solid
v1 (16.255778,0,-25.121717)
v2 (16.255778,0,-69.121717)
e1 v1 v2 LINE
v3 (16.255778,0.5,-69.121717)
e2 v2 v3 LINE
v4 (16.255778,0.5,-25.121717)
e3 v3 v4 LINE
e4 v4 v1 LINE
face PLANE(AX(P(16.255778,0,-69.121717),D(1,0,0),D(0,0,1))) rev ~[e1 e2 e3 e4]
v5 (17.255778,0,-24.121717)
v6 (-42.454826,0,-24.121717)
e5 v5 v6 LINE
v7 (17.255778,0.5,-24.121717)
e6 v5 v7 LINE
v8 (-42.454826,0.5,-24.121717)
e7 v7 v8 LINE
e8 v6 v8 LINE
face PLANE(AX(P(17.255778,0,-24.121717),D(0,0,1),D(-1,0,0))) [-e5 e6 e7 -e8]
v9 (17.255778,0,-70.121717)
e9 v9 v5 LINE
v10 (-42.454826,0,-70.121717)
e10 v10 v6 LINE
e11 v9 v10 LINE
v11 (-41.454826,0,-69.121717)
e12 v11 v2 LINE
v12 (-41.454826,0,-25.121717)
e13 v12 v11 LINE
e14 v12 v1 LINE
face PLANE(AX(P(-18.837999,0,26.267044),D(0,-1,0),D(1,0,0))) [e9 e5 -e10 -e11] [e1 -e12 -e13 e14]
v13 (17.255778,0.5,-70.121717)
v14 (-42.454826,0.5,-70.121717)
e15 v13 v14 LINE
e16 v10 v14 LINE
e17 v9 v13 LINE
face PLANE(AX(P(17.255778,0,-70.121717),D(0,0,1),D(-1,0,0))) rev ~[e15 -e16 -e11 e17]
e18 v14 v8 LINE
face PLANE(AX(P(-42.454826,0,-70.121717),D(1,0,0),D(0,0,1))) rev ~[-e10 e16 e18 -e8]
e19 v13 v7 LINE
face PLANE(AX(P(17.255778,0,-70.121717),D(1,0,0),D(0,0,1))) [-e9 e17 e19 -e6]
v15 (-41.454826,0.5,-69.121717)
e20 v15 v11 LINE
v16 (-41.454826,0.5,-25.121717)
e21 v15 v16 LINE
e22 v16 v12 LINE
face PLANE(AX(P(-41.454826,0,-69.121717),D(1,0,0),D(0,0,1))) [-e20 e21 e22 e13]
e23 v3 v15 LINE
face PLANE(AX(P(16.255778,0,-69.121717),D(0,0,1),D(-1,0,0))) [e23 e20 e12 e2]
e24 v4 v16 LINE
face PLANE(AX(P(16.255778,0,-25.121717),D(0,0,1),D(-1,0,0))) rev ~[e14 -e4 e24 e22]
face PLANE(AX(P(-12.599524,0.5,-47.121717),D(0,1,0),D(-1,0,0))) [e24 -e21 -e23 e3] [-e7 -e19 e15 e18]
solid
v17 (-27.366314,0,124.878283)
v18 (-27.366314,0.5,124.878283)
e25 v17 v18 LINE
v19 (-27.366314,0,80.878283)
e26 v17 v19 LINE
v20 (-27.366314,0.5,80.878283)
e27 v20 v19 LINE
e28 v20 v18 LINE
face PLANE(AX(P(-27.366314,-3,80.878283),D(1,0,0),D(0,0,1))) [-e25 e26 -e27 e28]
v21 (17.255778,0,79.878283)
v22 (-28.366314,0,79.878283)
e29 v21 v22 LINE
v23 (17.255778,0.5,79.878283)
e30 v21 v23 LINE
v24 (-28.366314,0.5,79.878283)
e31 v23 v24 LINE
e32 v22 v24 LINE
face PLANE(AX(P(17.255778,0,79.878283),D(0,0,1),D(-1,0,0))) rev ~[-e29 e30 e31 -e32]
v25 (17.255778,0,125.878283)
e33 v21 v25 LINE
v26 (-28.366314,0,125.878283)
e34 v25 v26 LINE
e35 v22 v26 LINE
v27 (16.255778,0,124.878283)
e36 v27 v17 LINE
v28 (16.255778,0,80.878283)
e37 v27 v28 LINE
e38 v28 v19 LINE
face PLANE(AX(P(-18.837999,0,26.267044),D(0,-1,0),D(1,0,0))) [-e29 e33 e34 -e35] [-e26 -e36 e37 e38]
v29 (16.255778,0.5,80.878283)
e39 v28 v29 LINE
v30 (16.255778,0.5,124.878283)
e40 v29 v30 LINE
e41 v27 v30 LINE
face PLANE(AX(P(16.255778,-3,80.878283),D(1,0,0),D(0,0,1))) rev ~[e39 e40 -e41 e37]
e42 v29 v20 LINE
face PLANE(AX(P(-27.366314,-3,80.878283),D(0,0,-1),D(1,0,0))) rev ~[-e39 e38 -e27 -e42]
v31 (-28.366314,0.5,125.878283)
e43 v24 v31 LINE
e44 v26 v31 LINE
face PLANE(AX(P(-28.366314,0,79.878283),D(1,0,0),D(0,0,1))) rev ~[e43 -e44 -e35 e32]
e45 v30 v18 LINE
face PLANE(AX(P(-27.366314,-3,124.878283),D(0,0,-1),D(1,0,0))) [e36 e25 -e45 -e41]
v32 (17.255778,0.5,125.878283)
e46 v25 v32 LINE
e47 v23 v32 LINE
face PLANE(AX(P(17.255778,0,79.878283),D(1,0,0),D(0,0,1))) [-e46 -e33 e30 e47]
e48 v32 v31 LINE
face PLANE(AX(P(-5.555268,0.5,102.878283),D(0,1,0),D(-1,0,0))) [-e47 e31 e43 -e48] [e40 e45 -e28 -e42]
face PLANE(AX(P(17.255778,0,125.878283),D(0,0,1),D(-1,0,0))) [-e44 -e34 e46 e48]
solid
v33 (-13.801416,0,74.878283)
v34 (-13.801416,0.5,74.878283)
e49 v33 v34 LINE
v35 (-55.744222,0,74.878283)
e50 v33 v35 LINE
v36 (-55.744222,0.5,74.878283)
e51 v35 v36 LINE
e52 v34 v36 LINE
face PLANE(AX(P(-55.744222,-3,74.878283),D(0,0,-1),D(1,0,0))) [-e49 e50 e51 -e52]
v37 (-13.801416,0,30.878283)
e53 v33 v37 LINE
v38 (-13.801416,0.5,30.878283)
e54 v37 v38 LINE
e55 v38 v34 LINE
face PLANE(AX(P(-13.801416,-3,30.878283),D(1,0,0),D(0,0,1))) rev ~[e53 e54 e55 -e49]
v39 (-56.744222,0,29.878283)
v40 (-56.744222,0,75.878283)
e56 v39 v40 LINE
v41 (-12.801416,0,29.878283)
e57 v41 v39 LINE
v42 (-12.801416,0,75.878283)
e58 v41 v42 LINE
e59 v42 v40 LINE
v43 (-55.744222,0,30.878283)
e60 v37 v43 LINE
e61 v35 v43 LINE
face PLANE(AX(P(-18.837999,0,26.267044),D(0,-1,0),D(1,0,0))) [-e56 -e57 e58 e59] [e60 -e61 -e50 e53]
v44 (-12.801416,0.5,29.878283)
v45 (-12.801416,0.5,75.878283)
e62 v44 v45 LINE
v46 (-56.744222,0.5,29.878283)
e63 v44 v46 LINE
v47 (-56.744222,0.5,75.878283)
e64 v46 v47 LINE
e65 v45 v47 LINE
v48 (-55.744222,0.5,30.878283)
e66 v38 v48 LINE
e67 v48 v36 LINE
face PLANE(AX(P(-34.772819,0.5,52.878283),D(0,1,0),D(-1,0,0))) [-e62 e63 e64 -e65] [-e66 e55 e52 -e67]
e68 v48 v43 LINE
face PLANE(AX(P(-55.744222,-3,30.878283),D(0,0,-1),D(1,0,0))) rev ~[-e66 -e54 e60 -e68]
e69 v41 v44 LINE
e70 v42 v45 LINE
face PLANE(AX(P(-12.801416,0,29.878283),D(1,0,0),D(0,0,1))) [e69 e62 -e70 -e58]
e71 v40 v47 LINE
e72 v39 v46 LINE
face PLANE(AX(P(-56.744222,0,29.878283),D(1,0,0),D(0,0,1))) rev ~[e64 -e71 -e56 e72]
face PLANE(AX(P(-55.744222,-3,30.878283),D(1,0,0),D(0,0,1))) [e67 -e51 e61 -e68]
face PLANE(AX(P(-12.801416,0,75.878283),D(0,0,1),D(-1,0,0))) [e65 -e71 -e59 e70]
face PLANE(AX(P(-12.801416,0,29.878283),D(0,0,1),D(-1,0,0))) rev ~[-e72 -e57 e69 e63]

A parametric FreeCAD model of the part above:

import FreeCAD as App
import Part
import Sketcher
from FreeCAD import Vector
Q = App.Units.Quantity

doc = App.newDocument("Part")
body = doc.addObject("PartDesign::Body", "Body")
body.AllowCompound = True

sketch1 = body.newObject("Sketcher::SketchObject", "Sketch")
sketch1.AttachmentSupport = (doc.getObject("XZ_Plane"), [""])
sketch1.MapMode = "FlatFace"
sketch1.addGeometry(Part.LineSegment(Vector(-60, 129, 0), Vector(-60, -73, 0)), False)
sketch1.addGeometry(Part.LineSegment(Vector(-60, -73, 0), Vector(20, -73, 0)), False)
sketch1.addGeometry(Part.LineSegment(Vector(20, -73, 0), Vector(20, 129, 0)), False)
sketch1.addGeometry(Part.LineSegment(Vector(20, 129, 0), Vector(-60, 129, 0)), False)
sketch1.addConstraint(Sketcher.Constraint("Coincident", 0, 2, 1, 1))
sketch1.addConstraint(Sketcher.Constraint("Coincident", 1, 2, 2, 1))
sketch1.addConstraint(Sketcher.Constraint("Coincident", 2, 2, 3, 1))
sketch1.addConstraint(Sketcher.Constraint("Coincident", 3, 2, 0, 1))
sketch1.addConstraint(Sketcher.Constraint("Vertical", 0))
sketch1.addConstraint(Sketcher.Constraint("Horizontal", 1))
sketch1.addConstraint(Sketcher.Constraint("Vertical", 2))
sketch1.addConstraint(Sketcher.Constraint("Horizontal", 3))
sketch1.addConstraint(Sketcher.Constraint("DistanceX", 1, 1, 1, 2, Q("80 mm")))
sketch1.addConstraint(Sketcher.Constraint("DistanceY", 0, 2, 0, 1, Q("202 mm")))
sketch1.addConstraint(Sketcher.Constraint("DistanceX", 0, 2, -1, 1, Q("59.744222 mm")))
sketch1.addConstraint(Sketcher.Constraint("DistanceY", 0, 2, -1, 1, Q("73.121717 mm")))
pad1 = body.newObject("PartDesign::Pad", "Pad")
pad1.Profile = sketch1
pad1.Length = 3

sketch2 = body.newObject("Sketcher::SketchObject", "Sketch001")
sketch2.AttachmentSupport = (doc.getObject("XZ_Plane"), [""])
sketch2.MapMode = "FlatFace"
sketch2.AttachmentOffset = App.Placement(Vector(0, 0, 3), App.Rotation())
sketch2.addGeometry(Part.LineSegment(Vector(-56, 75, 0), Vector(-56, 31, 0)), False)
sketch2.addGeometry(Part.LineSegment(Vector(-56, 31, 0), Vector(-14, 31, 0)), False)
sketch2.addGeometry(Part.LineSegment(Vector(-14, 31, 0), Vector(-14, 75, 0)), False)
sketch2.addGeometry(Part.LineSegment(Vector(-14, 75, 0), Vector(-56, 75, 0)), False)
sketch2.addGeometry(Part.LineSegment(Vector(-27, 125, 0), Vector(-27, 81, 0)), False)
sketch2.addGeometry(Part.LineSegment(Vector(-27, 81, 0), Vector(16, 81, 0)), False)
sketch2.addGeometry(Part.LineSegment(Vector(16, 81, 0), Vector(16, 125, 0)), False)
sketch2.addGeometry(Part.LineSegment(Vector(16, 125, 0), Vector(-27, 125, 0)), False)
sketch2.addGeometry(Part.LineSegment(Vector(16, -25, 0), Vector(-41, -25, 0)), False)
sketch2.addGeometry(Part.LineSegment(Vector(-41, -25, 0), Vector(-41, -69, 0)), False)
sketch2.addGeometry(Part.LineSegment(Vector(-41, -69, 0), Vector(16, -69, 0)), False)
sketch2.addGeometry(Part.LineSegment(Vector(16, -69, 0), Vector(16, -25, 0)), False)
sketch2.addConstraint(Sketcher.Constraint("Coincident", 0, 2, 1, 1))
sketch2.addConstraint(Sketcher.Constraint("Coincident", 1, 2, 2, 1))
sketch2.addConstraint(Sketcher.Constraint("Coincident", 2, 2, 3, 1))
sketch2.addConstraint(Sketcher.Constraint("Coincident", 3, 2, 0, 1))
sketch2.addConstraint(Sketcher.Constraint("Coincident", 4, 2, 5, 1))
sketch2.addConstraint(Sketcher.Constraint("Coincident", 5, 2, 6, 1))
sketch2.addConstraint(Sketcher.Constraint("Coincident", 6, 2, 7, 1))
sketch2.addConstraint(Sketcher.Constraint("Coincident", 7, 2, 4, 1))
sketch2.addConstraint(Sketcher.Constraint("Coincident", 8, 2, 9, 1))
sketch2.addConstraint(Sketcher.Constraint("Coincident", 9, 2, 10, 1))
sketch2.addConstraint(Sketcher.Constraint("Coincident", 10, 2, 11, 1))
sketch2.addConstraint(Sketcher.Constraint("Coincident", 11, 2, 8, 1))
sketch2.addConstraint(Sketcher.Constraint("Vertical", 0))
sketch2.addConstraint(Sketcher.Constraint("Horizontal", 1))
sketch2.addConstraint(Sketcher.Constraint("Vertical", 2))
sketch2.addConstraint(Sketcher.Constraint("Horizontal", 3))
sketch2.addConstraint(Sketcher.Constraint("Vertical", 4))
sketch2.addConstraint(Sketcher.Constraint("Horizontal", 5))
sketch2.addConstraint(Sketcher.Constraint("Vertical", 6))
sketch2.addConstraint(Sketcher.Constraint("Horizontal", 7))
sketch2.addConstraint(Sketcher.Constraint("Horizontal", 8))
sketch2.addConstraint(Sketcher.Constraint("Vertical", 9))
sketch2.addConstraint(Sketcher.Constraint("Horizontal", 10))
sketch2.addConstraint(Sketcher.Constraint("Vertical", 11))
sketch2.addConstraint(Sketcher.Constraint("Vertical", 6, 2, 10, 2))
sketch2.addConstraint(Sketcher.Constraint("Equal", 2, 4))
sketch2.addConstraint(Sketcher.Constraint("Equal", 6, 9))
sketch2.addConstraint(Sketcher.Constraint("DistanceY", 0, 2, 0, 1, Q("44 mm")))
sketch2.addConstraint(Sketcher.Constraint("DistanceY", 2, 2, 4, 2, Q("6 mm")))
sketch2.addConstraint(Sketcher.Constraint("DistanceX", 3, 2, 5, 2, Q("72 mm")))
sketch2.addConstraint(Sketcher.Constraint("DistanceY", 8, 2, 0, 2, Q("56 mm")))
sketch2.addConstraint(Sketcher.Constraint("DistanceX", 5, 1, 5, 2, Q("43.622092 mm")))
sketch2.addConstraint(Sketcher.Constraint("DistanceX", 1, 1, 1, 2, Q("41.942806 mm")))
sketch2.addConstraint(Sketcher.Constraint("DistanceX", 8, 2, 8, 1, Q("57.710604 mm")))
sketch2.addConstraint(Sketcher.Constraint("DistanceX", 0, 2, -1, 1, Q("55.744222 mm")))
sketch2.addConstraint(Sketcher.Constraint("DistanceY", -1, 1, 0, 2, Q("30.878283 mm")))
pocket1 = body.newObject("PartDesign::Pocket", "Pocket")
pocket1.Profile = sketch2
pocket1.Length = 25

sketch3 = body.newObject("Sketcher::SketchObject", "Sketch002")
sketch3.AttachmentSupport = (doc.getObject("XZ_Plane"), [""])
sketch3.MapMode = "FlatFace"
sketch3.addGeometry(Part.LineSegment(Vector(17, -24, 0), Vector(17, -70, 0)), False)
sketch3.addGeometry(Part.LineSegment(Vector(17, -70, 0), Vector(-42, -70, 0)), False)
sketch3.addGeometry(Part.LineSegment(Vector(-42, -70, 0), Vector(-42, -24, 0)), False)
sketch3.addGeometry(Part.LineSegment(Vector(-42, -24, 0), Vector(17, -24, 0)), False)
sketch3.addGeometry(Part.LineSegment(Vector(-41, -69, 0), Vector(16, -69, 0)), False)
sketch3.addGeometry(Part.LineSegment(Vector(16, -69, 0), Vector(16, -25, 0)), False)
sketch3.addGeometry(Part.LineSegment(Vector(16, -25, 0), Vector(-41, -25, 0)), False)
sketch3.addGeometry(Part.LineSegment(Vector(-41, -25, 0), Vector(-41, -69, 0)), False)
sketch3.addGeometry(Part.LineSegment(Vector(-13, 76, 0), Vector(-13, 30, 0)), False)
sketch3.addGeometry(Part.LineSegment(Vector(-13, 30, 0), Vector(-57, 30, 0)), False)
sketch3.addGeometry(Part.LineSegment(Vector(-57, 30, 0), Vector(-57, 76, 0)), False)
sketch3.addGeometry(Part.LineSegment(Vector(-57, 76, 0), Vector(-13, 76, 0)), False)
sketch3.addGeometry(Part.LineSegment(Vector(-56, 31, 0), Vector(-14, 31, 0)), False)
sketch3.addGeometry(Part.LineSegment(Vector(-14, 31, 0), Vector(-14, 75, 0)), False)
sketch3.addGeometry(Part.LineSegment(Vector(-14, 75, 0), Vector(-56, 75, 0)), False)
sketch3.addGeometry(Part.LineSegment(Vector(-56, 75, 0), Vector(-56, 31, 0)), False)
sketch3.addGeometry(Part.LineSegment(Vector(17, 126, 0), Vector(17, 80, 0)), False)
sketch3.addGeometry(Part.LineSegment(Vector(17, 80, 0), Vector(-28, 80, 0)), False)
sketch3.addGeometry(Part.LineSegment(Vector(-28, 80, 0), Vector(-28, 126, 0)), False)
sketch3.addGeometry(Part.LineSegment(Vector(-28, 126, 0), Vector(17, 126, 0)), False)
sketch3.addGeometry(Part.LineSegment(Vector(-27, 81, 0), Vector(16, 81, 0)), False)
sketch3.addGeometry(Part.LineSegment(Vector(16, 81, 0), Vector(16, 125, 0)), False)
sketch3.addGeometry(Part.LineSegment(Vector(16, 125, 0), Vector(-27, 125, 0)), False)
sketch3.addGeometry(Part.LineSegment(Vector(-27, 125, 0), Vector(-27, 81, 0)), False)
sketch3.addConstraint(Sketcher.Constraint("Coincident", 0, 2, 1, 1))
sketch3.addConstraint(Sketcher.Constraint("Coincident", 1, 2, 2, 1))
sketch3.addConstraint(Sketcher.Constraint("Coincident", 2, 2, 3, 1))
sketch3.addConstraint(Sketcher.Constraint("Coincident", 3, 2, 0, 1))
sketch3.addConstraint(Sketcher.Constraint("Coincident", 4, 2, 5, 1))
sketch3.addConstraint(Sketcher.Constraint("Coincident", 5, 2, 6, 1))
sketch3.addConstraint(Sketcher.Constraint("Coincident", 6, 2, 7, 1))
sketch3.addConstraint(Sketcher.Constraint("Coincident", 7, 2, 4, 1))
sketch3.addConstraint(Sketcher.Constraint("Coincident", 8, 2, 9, 1))
sketch3.addConstraint(Sketcher.Constraint("Coincident", 9, 2, 10, 1))
sketch3.addConstraint(Sketcher.Constraint("Coincident", 10, 2, 11, 1))
sketch3.addConstraint(Sketcher.Constraint("Coincident", 11, 2, 8, 1))
sketch3.addConstraint(Sketcher.Constraint("Coincident", 12, 2, 13, 1))
sketch3.addConstraint(Sketcher.Constraint("Coincident", 13, 2, 14, 1))
sketch3.addConstraint(Sketcher.Constraint("Coincident", 14, 2, 15, 1))
sketch3.addConstraint(Sketcher.Constraint("Coincident", 15, 2, 12, 1))
sketch3.addConstraint(Sketcher.Constraint("Coincident", 16, 2, 17, 1))
sketch3.addConstraint(Sketcher.Constraint("Coincident", 17, 2, 18, 1))
sketch3.addConstraint(Sketcher.Constraint("Coincident", 18, 2, 19, 1))
sketch3.addConstraint(Sketcher.Constraint("Coincident", 19, 2, 16, 1))
sketch3.addConstraint(Sketcher.Constraint("Coincident", 20, 2, 21, 1))
sketch3.addConstraint(Sketcher.Constraint("Coincident", 21, 2, 22, 1))
sketch3.addConstraint(Sketcher.Constraint("Coincident", 22, 2, 23, 1))
sketch3.addConstraint(Sketcher.Constraint("Coincident", 23, 2, 20, 1))
sketch3.addConstraint(Sketcher.Constraint("Vertical", 0))
sketch3.addConstraint(Sketcher.Constraint("Horizontal", 1))
sketch3.addConstraint(Sketcher.Constraint("Vertical", 2))
sketch3.addConstraint(Sketcher.Constraint("Horizontal", 3))
sketch3.addConstraint(Sketcher.Constraint("Horizontal", 4))
sketch3.addConstraint(Sketcher.Constraint("Vertical", 5))
sketch3.addConstraint(Sketcher.Constraint("Horizontal", 6))
sketch3.addConstraint(Sketcher.Constraint("Vertical", 7))
sketch3.addConstraint(Sketcher.Constraint("Vertical", 8))
sketch3.addConstraint(Sketcher.Constraint("Horizontal", 9))
sketch3.addConstraint(Sketcher.Constraint("Vertical", 10))
sketch3.addConstraint(Sketcher.Constraint("Horizontal", 11))
sketch3.addConstraint(Sketcher.Constraint("Horizontal", 12))
sketch3.addConstraint(Sketcher.Constraint("Vertical", 13))
sketch3.addConstraint(Sketcher.Constraint("Horizontal", 14))
sketch3.addConstraint(Sketcher.Constraint("Vertical", 15))
sketch3.addConstraint(Sketcher.Constraint("Vertical", 16))
sketch3.addConstraint(Sketcher.Constraint("Horizontal", 17))
sketch3.addConstraint(Sketcher.Constraint("Vertical", 18))
sketch3.addConstraint(Sketcher.Constraint("Horizontal", 19))
sketch3.addConstraint(Sketcher.Constraint("Horizontal", 20))
sketch3.addConstraint(Sketcher.Constraint("Vertical", 21))
sketch3.addConstraint(Sketcher.Constraint("Horizontal", 22))
sketch3.addConstraint(Sketcher.Constraint("Vertical", 23))
sketch3.addConstraint(Sketcher.Constraint("Vertical", 3, 2, 16, 2))
sketch3.addConstraint(Sketcher.Constraint("Vertical", 5, 2, 20, 2))
sketch3.addConstraint(Sketcher.Constraint("Equal", 2, 8))
sketch3.addConstraint(Sketcher.Constraint("Equal", 7, 13))
sketch3.addConstraint(Sketcher.Constraint("Equal", 10, 16))
sketch3.addConstraint(Sketcher.Constraint("Equal", 15, 21))
sketch3.addConstraint(Sketcher.Constraint("DistanceY", 0, 2, 0, 1, Q("46 mm")))
sketch3.addConstraint(Sketcher.Constraint("DistanceY", 5, 1, 5, 2, Q("44 mm")))
sketch3.addConstraint(Sketcher.Constraint("DistanceX", 4, 2, 0, 2, Q("1 mm")))
sketch3.addConstraint(Sketcher.Constraint("DistanceY", 0, 2, 4, 2, Q("1 mm")))
sketch3.addConstraint(Sketcher.Constraint("DistanceX", 2, 2, 6, 2, Q("1 mm")))
sketch3.addConstraint(Sketcher.Constraint("DistanceY", 2, 2, 8, 2, Q("54 mm")))
sketch3.addConstraint(Sketcher.Constraint("DistanceX", 9, 2, 5, 2, Q("73 mm")))
sketch3.addConstraint(Sketcher.Constraint("DistanceX", 12, 2, 8, 2, Q("1 mm")))
sketch3.addConstraint(Sketcher.Constraint("DistanceY", 8, 2, 12, 2, Q("1 mm")))
sketch3.addConstraint(Sketcher.Constraint("DistanceX", 10, 2, 14, 2, Q("1 mm")))
sketch3.addConstraint(Sketcher.Constraint("DistanceY", 11, 2, 16, 2, Q("4 mm")))
sketch3.addConstraint(Sketcher.Constraint("DistanceY", 16, 2, 20, 2, Q("1 mm")))
sketch3.addConstraint(Sketcher.Constraint("DistanceX", 18, 2, 22, 2, Q("1 mm")))
sketch3.addConstraint(Sketcher.Constraint("DistanceX", 17, 2, 17, 1, Q("45.622092 mm")))
sketch3.addConstraint(Sketcher.Constraint("DistanceX", 1, 2, 1, 1, Q("59.710604 mm")))
sketch3.addConstraint(Sketcher.Constraint("DistanceX", 9, 2, 9, 1, Q("43.942806 mm")))
sketch3.addConstraint(Sketcher.Constraint("DistanceX", -1, 1, 0, 2, Q("17.255778 mm")))
sketch3.addConstraint(Sketcher.Constraint("DistanceY", 0, 2, -1, 1, Q("70.121717 mm")))
pad2 = body.newObject("PartDesign::Pad", "Pad001")
pad2.Profile = sketch3
pad2.Length = 0.5
pad2.Reversed = True

sketch4 = body.newObject("Sketcher::SketchObject", "Sketch003")
sketch4.AttachmentSupport = (doc.getObject("XZ_Plane"), [""])
sketch4.MapMode = "FlatFace"
sketch4.AttachmentOffset = App.Placement(Vector(0, 0, 3), App.Rotation())
sketch4.addGeometry(Part.LineSegment(Vector(-74, 139, 0), Vector(-74, -86, 0)), False)
sketch4.addGeometry(Part.LineSegment(Vector(-74, -86, 0), Vector(36, -86, 0)), False)
sketch4.addGeometry(Part.LineSegment(Vector(36, -86, 0), Vector(36, 139, 0)), False)
sketch4.addGeometry(Part.LineSegment(Vector(36, 139, 0), Vector(-74, 139, 0)), False)
sketch4.addConstraint(Sketcher.Constraint("Coincident", 0, 2, 1, 1))
sketch4.addConstraint(Sketcher.Constraint("Coincident", 1, 2, 2, 1))
sketch4.addConstraint(Sketcher.Constraint("Coincident", 2, 2, 3, 1))
sketch4.addConstraint(Sketcher.Constraint("Coincident", 3, 2, 0, 1))
sketch4.addConstraint(Sketcher.Constraint("Vertical", 0))
sketch4.addConstraint(Sketcher.Constraint("Horizontal", 1))
sketch4.addConstraint(Sketcher.Constraint("Vertical", 2))
sketch4.addConstraint(Sketcher.Constraint("Horizontal", 3))
sketch4.addConstraint(Sketcher.Constraint("DistanceY", 0, 2, 0, 1, Q("224.900469 mm")))
sketch4.addConstraint(Sketcher.Constraint("DistanceX", 1, 1, 1, 2, Q("109.326043 mm")))
sketch4.addConstraint(Sketcher.Constraint("DistanceX", 0, 2, -1, 1, Q("73.50102 mm")))
sketch4.addConstraint(Sketcher.Constraint("DistanceY", 0, 2, -1, 1, Q("86.18319 mm")))
pocket2 = body.newObject("PartDesign::Pocket", "Pocket001")
pocket2.Profile = sketch4
pocket2.Length = 3

doc.recompute()
